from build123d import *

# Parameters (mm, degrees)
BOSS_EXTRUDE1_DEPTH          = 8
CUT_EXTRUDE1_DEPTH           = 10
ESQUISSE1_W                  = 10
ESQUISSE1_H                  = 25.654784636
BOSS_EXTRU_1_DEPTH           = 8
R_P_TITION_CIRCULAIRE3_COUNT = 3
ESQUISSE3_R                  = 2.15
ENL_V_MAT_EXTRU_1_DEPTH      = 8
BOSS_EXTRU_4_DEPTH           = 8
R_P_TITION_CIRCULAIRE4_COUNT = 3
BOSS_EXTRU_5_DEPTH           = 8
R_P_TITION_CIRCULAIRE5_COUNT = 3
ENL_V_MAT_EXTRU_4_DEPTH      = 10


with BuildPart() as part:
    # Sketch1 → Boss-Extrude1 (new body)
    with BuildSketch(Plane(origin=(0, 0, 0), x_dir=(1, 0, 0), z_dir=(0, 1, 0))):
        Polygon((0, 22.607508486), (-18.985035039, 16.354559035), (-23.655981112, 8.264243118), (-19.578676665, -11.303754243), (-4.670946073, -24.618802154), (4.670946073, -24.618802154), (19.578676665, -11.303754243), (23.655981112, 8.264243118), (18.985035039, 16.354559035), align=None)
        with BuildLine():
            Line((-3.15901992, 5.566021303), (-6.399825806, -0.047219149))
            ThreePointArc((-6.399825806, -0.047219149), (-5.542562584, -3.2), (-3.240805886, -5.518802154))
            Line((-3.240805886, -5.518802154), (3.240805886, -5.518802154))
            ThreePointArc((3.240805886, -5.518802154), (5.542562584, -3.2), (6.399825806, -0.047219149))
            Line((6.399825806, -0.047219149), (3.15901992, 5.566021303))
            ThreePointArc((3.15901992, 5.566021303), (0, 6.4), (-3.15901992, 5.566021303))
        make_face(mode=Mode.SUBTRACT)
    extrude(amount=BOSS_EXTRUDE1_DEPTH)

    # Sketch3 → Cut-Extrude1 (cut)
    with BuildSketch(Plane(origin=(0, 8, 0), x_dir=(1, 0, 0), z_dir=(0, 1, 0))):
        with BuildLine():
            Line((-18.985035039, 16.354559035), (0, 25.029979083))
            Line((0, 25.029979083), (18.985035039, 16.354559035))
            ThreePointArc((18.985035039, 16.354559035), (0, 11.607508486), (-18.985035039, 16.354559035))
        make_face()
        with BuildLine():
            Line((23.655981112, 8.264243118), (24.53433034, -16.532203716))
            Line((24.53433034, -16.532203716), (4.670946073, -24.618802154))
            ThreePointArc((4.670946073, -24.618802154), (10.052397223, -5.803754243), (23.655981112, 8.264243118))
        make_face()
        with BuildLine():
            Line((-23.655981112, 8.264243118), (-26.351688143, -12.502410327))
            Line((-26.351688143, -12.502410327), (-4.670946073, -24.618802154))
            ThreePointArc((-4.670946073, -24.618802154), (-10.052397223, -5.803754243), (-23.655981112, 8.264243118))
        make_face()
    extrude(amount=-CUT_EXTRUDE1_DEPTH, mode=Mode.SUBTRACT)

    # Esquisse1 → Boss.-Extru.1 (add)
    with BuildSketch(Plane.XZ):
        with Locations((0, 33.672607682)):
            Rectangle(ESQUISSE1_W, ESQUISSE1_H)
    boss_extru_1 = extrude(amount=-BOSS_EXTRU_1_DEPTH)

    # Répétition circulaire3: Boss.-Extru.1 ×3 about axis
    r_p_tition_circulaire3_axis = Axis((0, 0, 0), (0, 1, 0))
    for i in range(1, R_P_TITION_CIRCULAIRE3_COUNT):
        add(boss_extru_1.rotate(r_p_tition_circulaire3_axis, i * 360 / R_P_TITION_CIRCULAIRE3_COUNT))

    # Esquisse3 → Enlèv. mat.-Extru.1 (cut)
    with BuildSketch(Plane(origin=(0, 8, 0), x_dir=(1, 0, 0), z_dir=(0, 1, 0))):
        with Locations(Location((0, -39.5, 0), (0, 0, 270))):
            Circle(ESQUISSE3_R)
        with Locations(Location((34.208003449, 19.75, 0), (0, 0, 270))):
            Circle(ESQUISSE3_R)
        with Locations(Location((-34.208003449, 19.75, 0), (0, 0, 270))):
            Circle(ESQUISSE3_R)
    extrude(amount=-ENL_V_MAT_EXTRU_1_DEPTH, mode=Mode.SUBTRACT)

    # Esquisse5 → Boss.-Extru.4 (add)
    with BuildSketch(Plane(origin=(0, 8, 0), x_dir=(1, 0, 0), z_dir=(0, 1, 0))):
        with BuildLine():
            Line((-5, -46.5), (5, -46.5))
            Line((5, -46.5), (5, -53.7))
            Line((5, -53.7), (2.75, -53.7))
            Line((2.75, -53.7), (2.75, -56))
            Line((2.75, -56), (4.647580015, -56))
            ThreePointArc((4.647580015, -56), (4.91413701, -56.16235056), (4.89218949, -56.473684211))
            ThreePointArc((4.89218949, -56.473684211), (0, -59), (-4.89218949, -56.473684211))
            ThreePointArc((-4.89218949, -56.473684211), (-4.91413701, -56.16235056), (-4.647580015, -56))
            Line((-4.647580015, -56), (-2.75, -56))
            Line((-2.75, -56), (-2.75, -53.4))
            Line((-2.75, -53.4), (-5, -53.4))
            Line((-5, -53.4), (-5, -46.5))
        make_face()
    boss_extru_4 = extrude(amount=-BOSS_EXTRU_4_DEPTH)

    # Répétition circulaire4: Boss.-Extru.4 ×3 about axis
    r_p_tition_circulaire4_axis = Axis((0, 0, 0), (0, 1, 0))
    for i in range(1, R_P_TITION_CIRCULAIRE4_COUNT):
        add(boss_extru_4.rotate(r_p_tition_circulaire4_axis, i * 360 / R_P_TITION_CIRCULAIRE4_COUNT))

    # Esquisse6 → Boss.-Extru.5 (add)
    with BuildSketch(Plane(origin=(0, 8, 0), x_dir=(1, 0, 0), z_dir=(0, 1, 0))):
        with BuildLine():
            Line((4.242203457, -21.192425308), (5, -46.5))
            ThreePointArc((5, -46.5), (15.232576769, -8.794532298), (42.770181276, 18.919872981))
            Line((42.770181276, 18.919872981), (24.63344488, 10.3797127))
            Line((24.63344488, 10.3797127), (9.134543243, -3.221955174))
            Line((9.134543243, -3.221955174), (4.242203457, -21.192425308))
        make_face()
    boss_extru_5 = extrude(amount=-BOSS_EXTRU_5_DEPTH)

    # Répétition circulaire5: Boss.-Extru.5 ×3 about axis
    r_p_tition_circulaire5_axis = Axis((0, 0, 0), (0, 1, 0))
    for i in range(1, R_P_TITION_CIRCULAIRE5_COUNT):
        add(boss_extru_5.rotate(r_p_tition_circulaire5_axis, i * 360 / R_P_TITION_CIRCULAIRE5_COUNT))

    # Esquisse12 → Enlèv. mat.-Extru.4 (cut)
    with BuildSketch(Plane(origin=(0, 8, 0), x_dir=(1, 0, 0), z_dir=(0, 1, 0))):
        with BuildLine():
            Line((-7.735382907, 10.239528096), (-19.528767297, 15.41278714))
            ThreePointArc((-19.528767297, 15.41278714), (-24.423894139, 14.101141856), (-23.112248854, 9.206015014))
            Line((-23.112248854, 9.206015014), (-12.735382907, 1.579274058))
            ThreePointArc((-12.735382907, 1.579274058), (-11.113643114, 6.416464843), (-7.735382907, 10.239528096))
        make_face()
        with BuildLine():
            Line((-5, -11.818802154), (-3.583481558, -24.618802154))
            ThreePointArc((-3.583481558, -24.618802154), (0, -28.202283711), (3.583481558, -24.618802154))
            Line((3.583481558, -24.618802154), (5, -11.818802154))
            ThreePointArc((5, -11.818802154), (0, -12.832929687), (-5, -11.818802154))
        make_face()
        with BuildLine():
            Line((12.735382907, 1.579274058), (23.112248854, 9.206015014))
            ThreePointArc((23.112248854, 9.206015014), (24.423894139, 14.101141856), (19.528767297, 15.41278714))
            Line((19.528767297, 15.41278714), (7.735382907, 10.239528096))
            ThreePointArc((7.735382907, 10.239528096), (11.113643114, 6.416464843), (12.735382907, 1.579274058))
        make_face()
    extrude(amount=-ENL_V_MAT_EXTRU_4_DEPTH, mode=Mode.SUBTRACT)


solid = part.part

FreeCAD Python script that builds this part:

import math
import FreeCAD as App
import Part
import Sketcher
from FreeCAD import Vector
Q = App.Units.Quantity

doc = App.newDocument("Part")
body = doc.addObject("PartDesign::Body", "Body")

# Sketch on XZ plane
sketch1 = body.newObject("Sketcher::SketchObject", "Sketch")
sketch1.AttachmentSupport = (doc.getObject("XZ_Plane"), [""])
sketch1.MapMode = "FlatFace"
sketch1.addGeometry([
    Part.LineSegment(Vector(0, -22.607508, 0), Vector(-18.985035, -16.354559, 0)),  # 0
    Part.LineSegment(Vector(-18.985035, -16.354559, 0), Vector(-23.655981, -8.264243, 0)),  # 1
    Part.LineSegment(Vector(-23.655981, -8.264243, 0), Vector(-19.578677, 11.303754, 0)),  # 2
    Part.LineSegment(Vector(-19.578677, 11.303754, 0), Vector(-4.670946, 24.618802, 0)),  # 3
    Part.LineSegment(Vector(-4.670946, 24.618802, 0), Vector(4.670946, 24.618802, 0)),  # 4
    Part.LineSegment(Vector(4.670946, 24.618802, 0), Vector(19.578677, 11.303754, 0)),  # 5
    Part.LineSegment(Vector(19.578677, 11.303754, 0), Vector(23.655981, -8.264243, 0)),  # 6
    Part.LineSegment(Vector(23.655981, -8.264243, 0), Vector(18.985035, -16.354559, 0)),  # 7
    Part.LineSegment(Vector(18.985035, -16.354559, 0), Vector(0, -22.607508, 0)),  # 8
    Part.LineSegment(Vector(-6.399826, 0.047219, 0), Vector(-3.15902, -5.566021, 0)),  # 9
    Part.ArcOfCircle(Part.Circle(Vector(0, 0, 0), Vector(0, 0, 1), 6.4), math.radians(-119.577268), math.radians(-60.422732)),  # 10
    Part.LineSegment(Vector(3.15902, -5.566021, 0), Vector(6.399826, 0.047219, 0)),  # 11
    Part.ArcOfCircle(Part.Circle(Vector(0, 0, 0), Vector(0, 0, 1), 6.4), math.radians(0.422732), math.radians(59.577268)),  # 12
    Part.LineSegment(Vector(3.240806, 5.518802, 0), Vector(-3.240806, 5.518802, 0)),  # 13
    Part.ArcOfCircle(Part.Circle(Vector(0, 0, 0), Vector(0, 0, 1), 6.4), math.radians(120.422732), math.radians(179.577268)),  # 14
], False)
sketch1.addConstraint([
    Sketcher.Constraint("Coincident", 0, 2, 1, 1),
    Sketcher.Constraint("Coincident", 1, 2, 2, 1),
    Sketcher.Constraint("Coincident", 2, 2, 3, 1),
    Sketcher.Constraint("Coincident", 3, 2, 4, 1),
    Sketcher.Constraint("Coincident", 4, 2, 5, 1),
    Sketcher.Constraint("Coincident", 5, 2, 6, 1),
    Sketcher.Constraint("Coincident", 6, 2, 7, 1),
    Sketcher.Constraint("Coincident", 7, 2, 8, 1),
    Sketcher.Constraint("Coincident", 8, 2, 0, 1),
    Sketcher.Constraint("Coincident", 9, 2, 10, 1),
    Sketcher.Constraint("Coincident", 10, 2, 11, 1),
    Sketcher.Constraint("Coincident", 11, 2, 12, 1),
    Sketcher.Constraint("Coincident", 12, 2, 13, 1),
    Sketcher.Constraint("Coincident", 13, 2, 14, 1),
    Sketcher.Constraint("Coincident", 14, 2, 9, 1),
    Sketcher.Constraint("Horizontal", 4),
    Sketcher.Constraint("Horizontal", 13),
    Sketcher.Constraint("Coincident", 10, 3, -1, 1),
    Sketcher.Constraint("Coincident", 12, 3, -1, 1),
    Sketcher.Constraint("Coincident", 14, 3, -1, 1),
    Sketcher.Constraint("Equal", 10, 12),
    Sketcher.Constraint("Equal", 12, 14),
    Sketcher.Constraint("Symmetric", 2, 2, 5, 2, -2),
    Sketcher.Constraint("Symmetric", 1, 2, 6, 2, -2),
    Sketcher.Constraint("Symmetric", 0, 2, 7, 2, -2),
    Sketcher.Constraint("PointOnObject", 8, 2, -2),
    Sketcher.Constraint("Parallel", 1, 9),
    Sketcher.Constraint("Parallel", 7, 11),
    Sketcher.Constraint("Horizontal", 9, 2, 10, 2),
    Sketcher.Constraint("Equal", 0, 2),
    Sketcher.Constraint("Equal", 2, 3),
    Sketcher.Constraint("Equal", 3, 5),
    Sketcher.Constraint("Radius", 10, Q("6.4 mm")),
    Sketcher.Constraint("Angle", 1, Q("120 deg")),
    Sketcher.Constraint("DistanceX", 13, 2, 13, 1, Q("6.481612 mm")),
    Sketcher.Constraint("Distance", 0, Q("19.98827 mm")),
    Sketcher.Constraint("Distance", 9, Q("6.481612 mm")),
    Sketcher.Constraint("DistanceX", 4, 1, 4, 2, Q("9.341892 mm")),
    Sketcher.Constraint("DistanceY", 0, 2, -1, 1, Q("16.354559 mm")),
    Sketcher.Constraint("DistanceX", 1, 2, -1, 1, Q("23.655981 mm")),
    Sketcher.Constraint("DistanceY", 8, 2, -1, 1, Q("22.607508 mm")),
    Sketcher.Constraint("DistanceX", 2, 2, 0, 2, Q("0.593642 mm")),
])
pad1 = body.newObject("PartDesign::Pad", "Pad")
pad1.Profile = sketch1
pad1.Length = 8
pad1.Reversed = True

# Sketch on XZ plane
sketch2 = body.newObject("Sketcher::SketchObject", "Sketch001")
sketch2.AttachmentSupport = (doc.getObject("XZ_Plane"), [""])
sketch2.MapMode = "FlatFace"
sketch2.AttachmentOffset = App.Placement(Vector(0, 0, -8), App.Rotation())
sketch2.addGeometry([
    Part.LineSegment(Vector(0, -25.029979, 0), Vector(-18.985035, -16.354559, 0)),  # 0
    Part.ArcOfCircle(Part.Circle(Vector(0, -51.944771, 0), Vector(0, 0, 1), 40.337262), math.radians(61.923015), math.radians(118.076985)),  # 1
    Part.LineSegment(Vector(18.985035, -16.354559, 0), Vector(0, -25.029979, 0)),  # 2
    Part.LineSegment(Vector(24.53433, 16.532204, 0), Vector(23.655981, -8.264243, 0)),  # 3
    Part.ArcOfCircle(Part.Circle(Vector(44.985491, 25.972385, 0), Vector(0, 0, 1), 40.337262), math.radians(-178.076985), math.radians(-121.923015)),  # 4
    Part.LineSegment(Vector(4.670946, 24.618802, 0), Vector(24.53433, 16.532204, 0)),  # 5
    Part.LineSegment(Vector(-23.655981, -8.264243, 0), Vector(-26.351688, 12.50241, 0)),  # 6
    Part.LineSegment(Vector(-26.351688, 12.50241, 0), Vector(-4.670946, 24.618802, 0)),  # 7
    Part.ArcOfCircle(Part.Circle(Vector(-44.985491, 25.972385, 0), Vector(0, 0, 1), 40.337262), math.radians(-58.076985), math.radians(-1.923015)),  # 8
], False)
sketch2.addConstraint([
    Sketcher.Constraint("Coincident", 0, 2, 1, 2),
    Sketcher.Constraint("Coincident", 1, 1, 2, 1),
    Sketcher.Constraint("Coincident", 2, 2, 0, 1),
    Sketcher.Constraint("Coincident", 3, 2, 4, 2),
    Sketcher.Constraint("Coincident", 4, 1, 5, 1),
    Sketcher.Constraint("Coincident", 5, 2, 3, 1),
    Sketcher.Constraint("Coincident", 6, 2, 7, 1),
    Sketcher.Constraint("Coincident", 7, 2, 8, 2),
    Sketcher.Constraint("Coincident", 8, 1, 6, 1),
    Sketcher.Constraint("Equal", 1, 4),
    Sketcher.Constraint("Equal", 4, 8),
    Sketcher.Constraint("Symmetric", 4, 3, 8, 3, -2),
    Sketcher.Constraint("Symmetric", 0, 2, 1, 1, -2),
    Sketcher.Constraint("PointOnObject", 2, 2, -2),
    Sketcher.Constraint("Horizontal", 4, 1, 7, 2),
    Sketcher.Constraint("Horizontal", 3, 2, 8, 1),
    Sketcher.Constraint("Distance", 3, Q("24.811999 mm")),
    Sketcher.Constraint("Radius", 1, Q("40.337262 mm")),
    Sketcher.Constraint("DistanceY", 5, 2, 4, 1, Q("8.086598 mm")),
    Sketcher.Constraint("DistanceY", 1, 3, -1, 1, Q("51.944771 mm")),
    Sketcher.Constraint("DistanceX", -1, 1, 4, 3, Q("44.985491 mm")),
    Sketcher.Constraint("DistanceY", 0, 2, -1, 1, Q("16.354559 mm")),
    Sketcher.Constraint("DistanceY", 2, 2, -1, 1, Q("25.029979 mm")),
    Sketcher.Constraint("DistanceX", -1, 1, 3, 2, Q("23.655981 mm")),
    Sketcher.Constraint("DistanceX", -1, 1, 5, 2, Q("24.53433 mm")),
    Sketcher.Constraint("DistanceX", 6, 2, -1, 1, Q("26.351688 mm")),
    Sketcher.Constraint("DistanceY", -1, 1, 6, 2, Q("12.50241 mm")),
    Sketcher.Constraint("DistanceY", 1, 1, 4, 1, Q("40.973361 mm")),
])
pocket1 = body.newObject("PartDesign::Pocket", "Pocket")
pocket1.Profile = sketch2
pocket1.Length = 10
pocket1.Reversed = True

# Sketch on XZ plane
sketch3 = body.newObject("Sketcher::SketchObject", "Sketch002")
sketch3.AttachmentSupport = (doc.getObject("XZ_Plane"), [""])
sketch3.MapMode = "FlatFace"
sketch3.addGeometry([
    Part.LineSegment(Vector(-5, 46.5, 0), Vector(-5, 20.845215, 0)),
    Part.LineSegment(Vector(-5, 20.845215, 0), Vector(5, 20.845215, 0)),
    Part.LineSegment(Vector(5, 20.845215, 0), Vector(5, 46.5, 0)),
    Part.LineSegment(Vector(5, 46.5, 0), Vector(-5, 46.5, 0)),
], False)
sketch3.addConstraint([
    Sketcher.Constraint("Coincident", 0, 2, 1, 1),
    Sketcher.Constraint("Coincident", 1, 2, 2, 1),
    Sketcher.Constraint("Coincident", 2, 2, 3, 1),
    Sketcher.Constraint("Coincident", 3, 2, 0, 1),
    Sketcher.Constraint("Vertical", 0),
    Sketcher.Constraint("Horizontal", 1),
    Sketcher.Constraint("Vertical", 2),
    Sketcher.Constraint("Horizontal", 3),
    Sketcher.Constraint("DistanceX", 1, 1, 1, 2, Q("10 mm")),
    Sketcher.Constraint("DistanceX", 0, 2, -1, 1, Q("5 mm")),
    Sketcher.Constraint("DistanceY", -1, 1, 2, 2, Q("46.5 mm")),
    Sketcher.Constraint("DistanceY", 0, 2, 0, 1, Q("25.654785 mm")),
])
pad2 = body.newObject("PartDesign::Pad", "Pad001")
pad2.Profile = sketch3
pad2.Length = 8
pad2.Reversed = True
doc.recompute()

polarpattern = body.newObject("PartDesign::PolarPattern", "PolarPattern")
polarpattern.Originals = [pad2]
polarpattern.Axis = (doc.getObject("Y_Axis"), [""])
polarpattern.Angle = 360
polarpattern.Occurrences = 3
body.Tip = polarpattern

# Sketch on XZ plane
sketch4 = body.newObject("Sketcher::SketchObject", "Sketch003")
sketch4.AttachmentSupport = (doc.getObject("XZ_Plane"), [""])
sketch4.MapMode = "FlatFace"
sketch4.AttachmentOffset = App.Placement(Vector(0, 0, -8), App.Rotation())
sketch4.addGeometry([
    Part.Circle(Vector(0, 39.5, 0), Vector(0, 0, 1), 2.15),
    Part.Circle(Vector(34.208003, -19.75, 0), Vector(0, 0, 1), 2.15),
    Part.Circle(Vector(-34.208003, -19.75, 0), Vector(0, 0, 1), 2.15),
], False)
sketch4.addConstraint([
    Sketcher.Constraint("Equal", 0, 1),
    Sketcher.Constraint("Equal", 1, 2),
    Sketcher.Constraint("Symmetric", 1, 3, 2, 3, -2),
    Sketcher.Constraint("PointOnObject", 0, 3, -2),
    Sketcher.Constraint("Diameter", 0, Q("4.3 mm")),
    Sketcher.Constraint("DistanceY", -1, 1, 0, 3, Q("39.5 mm")),
    Sketcher.Constraint("DistanceY", 1, 3, -1, 1, Q("19.75 mm")),
    Sketcher.Constraint("DistanceX", -1, 1, 1, 3, Q("34.208003 mm")),
])
pocket2 = body.newObject("PartDesign::Pocket", "Pocket001")
pocket2.Profile = sketch4
pocket2.Length = 8
pocket2.Reversed = True

# Sketch on XZ plane
sketch5 = body.newObject("Sketcher::SketchObject", "Sketch004")
sketch5.AttachmentSupport = (doc.getObject("XZ_Plane"), [""])
sketch5.MapMode = "FlatFace"
sketch5.AttachmentOffset = App.Placement(Vector(0, 0, -8), App.Rotation())
sketch5.addGeometry([
    Part.LineSegment(Vector(5, 46.5, 0), Vector(-5, 46.5, 0)),  # 0
    Part.LineSegment(Vector(-5, 46.5, 0), Vector(-5, 53.4, 0)),  # 1
    Part.LineSegment(Vector(-5, 53.4, 0), Vector(-2.75, 53.4, 0)),  # 2
    Part.LineSegment(Vector(-2.75, 53.4, 0), Vector(-2.75, 56, 0)),  # 3
    Part.LineSegment(Vector(-2.75, 56, 0), Vector(-4.64758, 56, 0)),  # 4
    Part.ArcOfCircle(Part.Circle(Vector(-4.64758, 56.3, 0), Vector(0, 0, 1), 0.3), math.radians(144.62346), math.radians(270)),  # 5
    Part.ArcOfCircle(Part.Circle(Vector(0, 53, 0), Vector(0, 0, 1), 6), math.radians(35.37654), math.radians(144.62346)),  # 6
    Part.ArcOfCircle(Part.Circle(Vector(4.64758, 56.3, 0), Vector(0, 0, 1), 0.3), math.radians(-90), math.radians(35.37654)),  # 7
    Part.LineSegment(Vector(4.64758, 56, 0), Vector(2.75, 56, 0)),  # 8
    Part.LineSegment(Vector(2.75, 56, 0), Vector(2.75, 53.7, 0)),  # 9
    Part.LineSegment(Vector(2.75, 53.7, 0), Vector(5, 53.7, 0)),  # 10
    Part.LineSegment(Vector(5, 53.7, 0), Vector(5, 46.5, 0)),  # 11
], False)
sketch5.addConstraint([
    Sketcher.Constraint("Coincident", 0, 2, 1, 1),
    Sketcher.Constraint("Coincident", 1, 2, 2, 1),
    Sketcher.Constraint("Coincident", 2, 2, 3, 1),
    Sketcher.Constraint("Coincident", 3, 2, 4, 1),
    Sketcher.Constraint("Tangent", 4, 2, 5, 2),
    Sketcher.Constraint("Tangent", 5, 1, 6, 2),
    Sketcher.Constraint("Tangent", 6, 1, 7, 2),
    Sketcher.Constraint("Tangent", 7, 1, 8, 1),
    Sketcher.Constraint("Coincident", 8, 2, 9, 1),
    Sketcher.Constraint("Coincident", 9, 2, 10, 1),
    Sketcher.Constraint("Coincident", 10, 2, 11, 1),
    Sketcher.Constraint("Coincident", 11, 2, 0, 1),
    Sketcher.Constraint("Horizontal", 0),
    Sketcher.Constraint("Vertical", 1),
    Sketcher.Constraint("Horizontal", 2),
    Sketcher.Constraint("Vertical", 3),
    Sketcher.Constraint("Horizontal", 4),
    Sketcher.Constraint("Horizontal", 8),
    Sketcher.Constraint("Vertical", 9),
    Sketcher.Constraint("Horizontal", 10),
    Sketcher.Constraint("Vertical", 11),
    Sketcher.Constraint("Equal", 5, 7),
    Sketcher.Constraint("Symmetric", 5, 3, 7, 3, -2),
    Sketcher.Constraint("Equal", 4, 8),
    Sketcher.Constraint("Equal", 2, 10),
    Sketcher.Constraint("Radius", 6, Q("6 mm")),
    Sketcher.Constraint("Radius", 5, Q("0.3 mm")),
    Sketcher.Constraint("DistanceX", 0, 2, 0, 1, Q("10 mm")),
    Sketcher.Constraint("DistanceY", 1, 1, 1, 2, Q("6.9 mm")),
    Sketcher.Constraint("DistanceY", 3, 1, 3, 2, Q("2.6 mm")),
    Sketcher.Constraint("DistanceY", 9, 2, 9, 1, Q("2.3 mm")),
    Sketcher.Constraint("DistanceY", -1, 1, 6, 3, Q("53 mm")),
    Sketcher.Constraint("DistanceY", -1, 1, 3, 2, Q("56 mm")),
    Sketcher.Constraint("DistanceX", 2, 1, 2, 2, Q("2.25 mm")),
])
pad3 = body.newObject("PartDesign::Pad", "Pad002")
pad3.Profile = sketch5
pad3.Length = 8
doc.recompute()

polarpattern2 = body.newObject("PartDesign::PolarPattern", "PolarPattern001")
polarpattern2.Originals = [pad3]
polarpattern2.Axis = (doc.getObject("Y_Axis"), [""])
polarpattern2.Angle = 360
polarpattern2.Occurrences = 3
body.Tip = polarpattern2

# Sketch on XZ plane
sketch6 = body.newObject("Sketcher::SketchObject", "Sketch005")
sketch6.AttachmentSupport = (doc.getObject("XZ_Plane"), [""])
sketch6.MapMode = "FlatFace"
sketch6.AttachmentOffset = App.Placement(Vector(0, 0, -8), App.Rotation())
sketch6.addGeometry([
    Part.LineSegment(Vector(4.242203, 21.192425, 0), Vector(5, 46.5, 0)),  # 0
    Part.ArcOfCircle(Part.Circle(Vector(81.387105, 46.988867, 0), Vector(0, 0, 1), 76.388669), math.radians(-179.63332), math.radians(-120.36668)),  # 1
    Part.LineSegment(Vector(42.770181, -18.919873, 0), Vector(24.633445, -10.379713, 0)),  # 2
    Part.LineSegment(Vector(24.633445, -10.379713, 0), Vector(9.134543, 3.221955, 0)),  # 3
    Part.LineSegment(Vector(9.134543, 3.221955, 0), Vector(4.242203, 21.192425, 0)),  # 4
], False)
sketch6.addConstraint([
    Sketcher.Constraint("Coincident", 0, 2, 1, 1),
    Sketcher.Constraint("Coincident", 1, 2, 2, 1),
    Sketcher.Constraint("Coincident", 2, 2, 3, 1),
    Sketcher.Constraint("Coincident", 3, 2, 4, 1),
    Sketcher.Constraint("Coincident", 4, 2, 0, 1),
    Sketcher.Constraint("DistanceX", -1, 1, 0, 2, Q("5 mm")),
    Sketcher.Constraint("DistanceY", -1, 1, 0, 2, Q("46.5 mm")),
    Sketcher.Constraint("Radius", 1, Q("76.388669 mm")),
    Sketcher.Constraint("DistanceX", 3, 2, 2, 2, Q("15.498902 mm")),
    Sketcher.Constraint("DistanceY", 1, 2, 4, 2, Q("40.112298 mm")),
    Sketcher.Constraint("DistanceX", 4, 2, 1, 3, Q("77.144901 mm")),
    Sketcher.Constraint("Distance", 4, Q("18.624521 mm")),
    Sketcher.Constraint("DistanceX", -1, 1, 1, 2, Q("42.770181 mm")),
    Sketcher.Constraint("DistanceY", 1, 2, 2, 2, Q("8.54016 mm")),
    Sketcher.Constraint("DistanceX", 2, 2, 1, 3, Q("56.75366 mm")),
    Sketcher.Constraint("Distance", 0, Q("25.318918 mm")),
])
pad4 = body.newObject("PartDesign::Pad", "Pad003")
pad4.Profile = sketch6
pad4.Length = 8
doc.recompute()

polarpattern3 = body.newObject("PartDesign::PolarPattern", "PolarPattern002")
polarpattern3.Originals = [pad4]
polarpattern3.Axis = (doc.getObject("Y_Axis"), [""])
polarpattern3.Angle = 360
polarpattern3.Occurrences = 3
body.Tip = polarpattern3

# Sketch on XZ plane
sketch7 = body.newObject("Sketcher::SketchObject", "Sketch006")
sketch7.AttachmentSupport = (doc.getObject("XZ_Plane"), [""])
sketch7.MapMode = "FlatFace"
sketch7.AttachmentOffset = App.Placement(Vector(0, 0, -8), App.Rotation())
sketch7.addGeometry([
    Part.LineSegment(Vector(-7.735383, -10.239528, 0), Vector(-19.528767, -15.412787, 0)),  # 0
    Part.ArcOfCircle(Part.Circle(Vector(-21.320508, -12.309401, 0), Vector(0, 0, 1), 3.583482), math.radians(120), math.radians(300)),  # 1
    Part.LineSegment(Vector(-23.112249, -9.206015, 0), Vector(-12.735383, -1.579274, 0)),  # 2
    Part.ArcOfCircle(Part.Circle(Vector(0, 0, 0), Vector(0, 0, 1), 12.83293), math.radians(-172.931021), math.radians(-127.068979)),  # 3
    Part.LineSegment(Vector(-5, 11.818802, 0), Vector(-3.583482, 24.618802, 0)),  # 4
    Part.ArcOfCircle(Part.Circle(Vector(0, 24.618802, 0), Vector(0, 0, 1), 3.583482), math.radians(0), math.radians(180)),  # 5
    Part.LineSegment(Vector(3.583482, 24.618802, 0), Vector(5, 11.818802, 0)),  # 6
    Part.ArcOfCircle(Part.Circle(Vector(0, 0, 0), Vector(0, 0, 1), 12.83293), math.radians(67.068979), math.radians(112.931021)),  # 7
    Part.LineSegment(Vector(12.735383, -1.579274, 0), Vector(23.112249, -9.206015, 0)),  # 8
    Part.ArcOfCircle(Part.Circle(Vector(21.320508, -12.309401, 0), Vector(0, 0, 1), 3.583482), math.radians(-120), math.radians(60)),  # 9
    Part.LineSegment(Vector(19.528767, -15.412787, 0), Vector(7.735383, -10.239528, 0)),  # 10
    Part.ArcOfCircle(Part.Circle(Vector(0, 0, 0), Vector(0, 0, 1), 12.83293), math.radians(-52.931021), math.radians(-7.068979)),  # 11
], False)
sketch7.addConstraint([
    Sketcher.Constraint("Coincident", 0, 2, 1, 2),
    Sketcher.Constraint("Coincident", 1, 1, 2, 1),
    Sketcher.Constraint("Coincident", 2, 2, 3, 1),
    Sketcher.Constraint("Coincident", 3, 2, 0, 1),
    Sketcher.Constraint("Coincident", 4, 2, 5, 2),
    Sketcher.Constraint("Coincident", 5, 1, 6, 1),
    Sketcher.Constraint("Coincident", 6, 2, 7, 1),
    Sketcher.Constraint("Coincident", 7, 2, 4, 1),
    Sketcher.Constraint("Coincident", 8, 2, 9, 2),
    Sketcher.Constraint("Coincident", 9, 1, 10, 1),
    Sketcher.Constraint("Coincident", 10, 2, 11, 1),
    Sketcher.Constraint("Coincident", 11, 2, 8, 1),
    Sketcher.Constraint("Coincident", 3, 3, -1, 1),
    Sketcher.Constraint("Coincident", 7, 3, -1, 1),
    Sketcher.Constraint("Coincident", 11, 3, -1, 1),
    Sketcher.Constraint("Equal", 1, 5),
    Sketcher.Constraint("Equal", 3, 7),
    Sketcher.Constraint("Equal", 5, 9),
    Sketcher.Constraint("Equal", 7, 11),
    Sketcher.Constraint("Symmetric", 1, 3, 9, 3, -2),
    Sketcher.Constraint("Symmetric", 4, 2, 5, 1, -2),
    Sketcher.Constraint("Horizontal", 5, 3, 4, 2),
    Sketcher.Constraint("Horizontal", 6, 2, 7, 2),
    Sketcher.Constraint("Horizontal", 1, 1, 8, 2),
    Sketcher.Constraint("Horizontal", 0, 2, 9, 1),
    Sketcher.Constraint("Horizontal", 3, 2, 10, 2),
    Sketcher.Constraint("Horizontal", 2, 2, 11, 2),
    Sketcher.Constraint("Equal", 0, 2),
    Sketcher.Constraint("Equal", 2, 4),
    Sketcher.Constraint("DistanceX", -1, 1, 6, 2, Q("5 mm")),
    Sketcher.Constraint("DistanceX", 2, 2, 3, 2, Q("5 mm")),
    Sketcher.Constraint("DistanceY", 6, 2, 5, 1, Q("12.8 mm")),
    Sketcher.Constraint("Radius", 1, Q("3.583482 mm")),
    Sketcher.Constraint("Radius", 3, Q("12.83293 mm")),
    Sketcher.Constraint("DistanceY", 1, 3, -1, 1, Q("12.309401 mm")),
    Sketcher.Constraint("DistanceX", 2, 2, 4, 2, Q("9.151901 mm")),
    Sketcher.Constraint("DistanceX", 1, 3, -1, 1, Q("21.320508 mm")),
])
pocket3 = body.newObject("PartDesign::Pocket", "Pocket002")
pocket3.Profile = sketch7
pocket3.Length = 10
pocket3.Reversed = True

doc.recompute()
